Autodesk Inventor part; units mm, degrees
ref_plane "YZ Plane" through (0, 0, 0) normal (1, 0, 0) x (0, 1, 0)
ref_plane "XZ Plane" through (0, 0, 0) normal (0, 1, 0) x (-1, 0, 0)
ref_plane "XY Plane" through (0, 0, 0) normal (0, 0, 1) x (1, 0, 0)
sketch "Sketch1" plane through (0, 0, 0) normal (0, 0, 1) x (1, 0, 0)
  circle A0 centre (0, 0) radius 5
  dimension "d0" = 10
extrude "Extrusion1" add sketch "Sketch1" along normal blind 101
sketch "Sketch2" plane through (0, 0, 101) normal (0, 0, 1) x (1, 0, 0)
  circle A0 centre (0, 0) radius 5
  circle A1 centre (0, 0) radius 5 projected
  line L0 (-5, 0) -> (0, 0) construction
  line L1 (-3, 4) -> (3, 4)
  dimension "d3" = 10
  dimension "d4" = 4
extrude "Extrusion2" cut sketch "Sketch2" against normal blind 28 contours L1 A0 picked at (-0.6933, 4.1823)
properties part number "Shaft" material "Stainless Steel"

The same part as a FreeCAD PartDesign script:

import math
import FreeCAD as App
import Part
import Sketcher

doc = App.newDocument("Part")
body = doc.addObject("PartDesign::Body", "Body")

# Sketch on XY plane
sketch1 = body.newObject("Sketcher::SketchObject", "Sketch")
sketch1.AttachmentSupport = (doc.getObject("XY_Plane"), [""])
sketch1.MapMode = "FlatFace"
sketch1.addGeometry(Part.Circle(App.Vector(0, 0, 0), App.Vector(0, 0, 1), 5), False)
sketch1.addConstraint([
    Sketcher.Constraint("Coincident", 0, 3, -1, 1),
    Sketcher.Constraint("Diameter", 0, 10.0),
])
pad1 = body.newObject("PartDesign::Pad", "Pad")
pad1.Profile = sketch1
pad1.Length = 101

# Sketch on XY plane
sketch2 = body.newObject("Sketcher::SketchObject", "Sketch001")
sketch2.AttachmentSupport = (doc.getObject("XY_Plane"), [""])
sketch2.MapMode = "FlatFace"
sketch2.AttachmentOffset = App.Placement(App.Vector(0, 0, 101), App.Rotation())
sketch2.addGeometry([
    Part.LineSegment(App.Vector(-3, 4, 0), App.Vector(3, 4, 0)),
    Part.ArcOfCircle(Part.Circle(App.Vector(0, 0, 0), App.Vector(0, 0, 1), 5), math.radians(53), math.radians(127)),
], False)
sketch2.addConstraint([
    Sketcher.Constraint("Coincident", 0, 1, 1, 2),
    Sketcher.Constraint("Coincident", 1, 1, 0, 2),
    Sketcher.Constraint("Horizontal", 0),
    Sketcher.Constraint("Coincident", 1, 3, -1, 1),
    Sketcher.Constraint("Radius", 1, 5.0),
    Sketcher.Constraint("DistanceY", -1, 1, 0, 1, 4.0),
])
pocket1 = body.newObject("PartDesign::Pocket", "Pocket")
pocket1.Profile = sketch2
pocket1.Length = 28

doc.recompute()
